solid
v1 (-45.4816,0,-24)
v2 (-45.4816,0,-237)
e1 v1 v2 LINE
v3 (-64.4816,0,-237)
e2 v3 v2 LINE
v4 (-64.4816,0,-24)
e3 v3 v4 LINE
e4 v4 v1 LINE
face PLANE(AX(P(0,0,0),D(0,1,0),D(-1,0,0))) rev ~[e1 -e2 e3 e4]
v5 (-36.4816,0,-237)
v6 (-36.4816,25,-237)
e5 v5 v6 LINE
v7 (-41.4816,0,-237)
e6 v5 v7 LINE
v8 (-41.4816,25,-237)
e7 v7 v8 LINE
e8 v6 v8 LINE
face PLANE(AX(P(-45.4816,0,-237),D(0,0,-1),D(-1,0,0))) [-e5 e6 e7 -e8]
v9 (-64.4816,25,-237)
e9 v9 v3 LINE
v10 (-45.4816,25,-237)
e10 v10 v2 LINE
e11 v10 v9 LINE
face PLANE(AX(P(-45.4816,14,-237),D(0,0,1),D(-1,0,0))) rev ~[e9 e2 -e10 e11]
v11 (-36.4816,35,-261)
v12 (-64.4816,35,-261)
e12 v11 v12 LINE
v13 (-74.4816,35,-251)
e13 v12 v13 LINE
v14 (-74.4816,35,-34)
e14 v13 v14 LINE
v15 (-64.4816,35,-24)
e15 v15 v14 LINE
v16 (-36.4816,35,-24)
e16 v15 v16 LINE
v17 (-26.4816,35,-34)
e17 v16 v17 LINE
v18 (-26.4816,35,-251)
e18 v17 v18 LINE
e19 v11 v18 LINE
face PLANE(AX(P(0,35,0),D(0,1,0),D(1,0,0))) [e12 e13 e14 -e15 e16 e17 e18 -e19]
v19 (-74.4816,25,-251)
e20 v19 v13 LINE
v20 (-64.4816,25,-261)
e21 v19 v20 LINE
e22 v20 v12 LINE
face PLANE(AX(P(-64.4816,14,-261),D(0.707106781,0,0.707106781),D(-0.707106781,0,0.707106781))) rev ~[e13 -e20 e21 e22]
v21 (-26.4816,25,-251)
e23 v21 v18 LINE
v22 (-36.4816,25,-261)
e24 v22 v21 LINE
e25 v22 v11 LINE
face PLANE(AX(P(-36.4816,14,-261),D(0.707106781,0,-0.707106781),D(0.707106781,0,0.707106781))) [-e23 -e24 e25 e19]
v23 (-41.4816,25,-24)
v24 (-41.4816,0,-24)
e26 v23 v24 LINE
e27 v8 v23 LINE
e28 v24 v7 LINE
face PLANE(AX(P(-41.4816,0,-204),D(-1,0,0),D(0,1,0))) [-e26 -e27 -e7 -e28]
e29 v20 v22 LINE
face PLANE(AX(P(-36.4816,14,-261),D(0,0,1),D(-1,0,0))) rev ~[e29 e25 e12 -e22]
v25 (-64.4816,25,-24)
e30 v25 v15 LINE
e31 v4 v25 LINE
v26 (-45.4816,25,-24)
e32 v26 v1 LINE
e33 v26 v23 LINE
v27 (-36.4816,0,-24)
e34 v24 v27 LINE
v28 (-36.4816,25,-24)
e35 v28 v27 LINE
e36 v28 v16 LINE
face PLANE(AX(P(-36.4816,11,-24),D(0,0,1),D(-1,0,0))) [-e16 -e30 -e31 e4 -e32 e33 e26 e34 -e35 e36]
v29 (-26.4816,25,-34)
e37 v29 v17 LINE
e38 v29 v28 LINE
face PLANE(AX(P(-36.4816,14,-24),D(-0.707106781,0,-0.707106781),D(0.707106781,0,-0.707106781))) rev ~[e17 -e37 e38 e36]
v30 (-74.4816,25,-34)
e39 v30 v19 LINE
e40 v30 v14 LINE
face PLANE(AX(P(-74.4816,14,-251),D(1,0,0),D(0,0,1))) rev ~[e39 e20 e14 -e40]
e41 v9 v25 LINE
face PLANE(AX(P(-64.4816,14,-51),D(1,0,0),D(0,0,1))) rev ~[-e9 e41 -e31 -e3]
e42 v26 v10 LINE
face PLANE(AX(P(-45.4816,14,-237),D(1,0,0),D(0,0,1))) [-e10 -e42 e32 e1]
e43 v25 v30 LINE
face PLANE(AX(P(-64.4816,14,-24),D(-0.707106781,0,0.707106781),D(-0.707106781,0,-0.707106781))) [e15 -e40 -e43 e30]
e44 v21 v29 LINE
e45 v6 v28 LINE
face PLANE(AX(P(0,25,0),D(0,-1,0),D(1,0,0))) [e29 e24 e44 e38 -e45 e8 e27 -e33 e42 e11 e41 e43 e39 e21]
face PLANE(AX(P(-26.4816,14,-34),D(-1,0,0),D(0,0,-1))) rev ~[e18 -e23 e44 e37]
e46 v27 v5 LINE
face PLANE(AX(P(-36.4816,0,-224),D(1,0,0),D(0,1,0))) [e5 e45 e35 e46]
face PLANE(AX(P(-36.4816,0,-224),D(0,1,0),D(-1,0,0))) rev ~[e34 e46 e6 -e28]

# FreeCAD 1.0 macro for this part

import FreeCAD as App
import Part
import Sketcher
from FreeCAD import Vector
Q = App.Units.Quantity


def add_polygon(sketch, points):
    """Adds a closed chain of lines whose ends are joined by coincident constraints."""
    first, n = sketch.GeometryCount, len(points)
    for a, b in zip(points, points[1:] + points[:1]):
        sketch.addGeometry(Part.LineSegment(App.Vector(*a, 0), App.Vector(*b, 0)), False)
    for i in range(n):
        sketch.addConstraint(Sketcher.Constraint("Coincident", first + i, 2, first + (i + 1) % n, 1))

doc = App.newDocument("Part")
params = doc.addObject("Spreadsheet::Sheet", "Params")
for row, (alias, value) in enumerate([
    ("sketch1_width", "19 mm"),
    ("sketch1_width2", "5 mm"),
    ("sketch1_height", "27 mm"),
    ("sketch1_height2", "20 mm"),
    ("sketch1_height3", "85 mm"),
    ("pad1_length", "11 mm"),
    ("sketch2_width", "28 mm"),
    ("sketch2_height", "200 mm"),
    ("pad2_length", "3 mm"),
    ("pocket1_length", "11 mm"),
    ("sketch4_width", "28 mm"),
    ("sketch4_height", "217 mm"),
    ("pad3_length", "21 mm"),
    ("sketch5_width", "5 mm"),
    ("sketch5_width2", "4 mm"),
    ("sketch5_width3", "19 mm"),
    ("sketch5_height", "14 mm"),
    ("sketch5_height2", "11 mm"),
    ("pad4_length", "13 mm"),
    ("sketch6_width", "5 mm"),
    ("sketch6_width2", "4 mm"),
    ("sketch6_width3", "19 mm"),
    ("sketch6_height", "27 mm"),
    ("sketch6_height2", "33 mm"),
    ("pocket2_length", "3 mm"),
    ("sketch7_width", "5 mm"),
    ("sketch7_width2", "4 mm"),
    ("sketch7_width3", "19 mm"),
    ("sketch7_height", "27 mm"),
    ("sketch7_height2", "217 mm"),
    ("pocket3_length", "11 mm"),
    ("sketch8_width", "19 mm"),
    ("sketch8_width2", "5 mm"),
    ("sketch8_height", "25 mm"),
    ("pad5_length", "180 mm"),
], start=1):
    params.set(f"A{row}", alias)
    params.set(f"B{row}", "=" + value)
    params.setAlias(f"B{row}", alias)

body = doc.addObject("PartDesign::Body", "Body")
body.AllowCompound = True

# Sketch on XZ plane
sketch1 = body.newObject("Sketcher::SketchObject", "Sketch")
sketch1.AttachmentSupport = (doc.getObject("XZ_Plane"), [""])
sketch1.MapMode = "FlatFace"
add_polygon(sketch1, [(-64, -24), (-45, -24), (-45, -51), (-64, -51)])  # lines 0-3
add_polygon(sketch1, [(-45, -224), (-64, -224), (-64, -204), (-45, -204)])  # lines 4-7
add_polygon(sketch1, [(-64, -154), (-64, -69), (-45, -69), (-45, -154)])  # lines 8-11
add_polygon(sketch1, [(-41, -224), (-41, -24), (-36, -24), (-36, -224)])  # lines 12-15
sketch1.addConstraint([
    Sketcher.Constraint("Horizontal", 0),
    Sketcher.Constraint("Vertical", 1),
    Sketcher.Constraint("Horizontal", 2),
    Sketcher.Constraint("Vertical", 3),
    Sketcher.Constraint("Horizontal", 4),
    Sketcher.Constraint("Vertical", 5),
    Sketcher.Constraint("Horizontal", 6),
    Sketcher.Constraint("Vertical", 7),
    Sketcher.Constraint("Vertical", 8),
    Sketcher.Constraint("Horizontal", 9),
    Sketcher.Constraint("Vertical", 10),
    Sketcher.Constraint("Horizontal", 11),
    Sketcher.Constraint("Vertical", 12),
    Sketcher.Constraint("Horizontal", 13),
    Sketcher.Constraint("Vertical", 14),
    Sketcher.Constraint("Horizontal", 15),
    Sketcher.Constraint("Horizontal", 3, 2, 12, 2),
    Sketcher.Constraint("Horizontal", 7, 2, 14, 2),
    Sketcher.Constraint("Vertical", 3, 2, 4, 2),
    Sketcher.Constraint("Vertical", 1, 2, 6, 2),
    Sketcher.Constraint("Vertical", 5, 2, 8, 2),
    Sketcher.Constraint("Vertical", 7, 2, 9, 2),
    Sketcher.Constraint("DistanceX", 0, 1, 0, 2, Q("19 mm")),
    Sketcher.Constraint("DistanceX", 13, 1, 13, 2, Q("5 mm")),
    Sketcher.Constraint("DistanceY", 1, 2, 1, 1, Q("27 mm")),
    Sketcher.Constraint("DistanceY", 5, 1, 5, 2, Q("20 mm")),
    Sketcher.Constraint("DistanceY", 8, 1, 8, 2, Q("85 mm")),
    Sketcher.Constraint("DistanceY", 12, 1, 12, 2, Q("200 mm")),
    Sketcher.Constraint("DistanceY", 8, 2, 3, 2, Q("45 mm")),
    Sketcher.Constraint("DistanceX", 0, 2, 12, 2, Q("4 mm")),
    Sketcher.Constraint("DistanceY", 0, 2, -1, 1, Q("24 mm")),
    Sketcher.Constraint("DistanceX", 0, 2, -1, 1, Q("45.4816 mm")),
])
sketch1.setExpression("Constraints[38]", "Params.sketch1_width")
sketch1.setExpression("Constraints[39]", "Params.sketch1_width2")
sketch1.setExpression("Constraints[40]", "Params.sketch1_height")
sketch1.setExpression("Constraints[41]", "Params.sketch1_height2")
sketch1.setExpression("Constraints[42]", "Params.sketch1_height3")
pad1 = body.newObject("PartDesign::Pad", "Pad")
pad1.Profile = sketch1
pad1.setExpression("Length", "Params.pad1_length")
pad1.Reversed = True

# Sketch on XZ plane
sketch2 = body.newObject("Sketcher::SketchObject", "Sketch001")
sketch2.AttachmentSupport = (doc.getObject("XZ_Plane"), [""])
sketch2.MapMode = "FlatFace"
sketch2.AttachmentOffset = App.Placement(Vector(0, 0, -11), App.Rotation())
add_polygon(sketch2, [(-36, -224), (-64, -224), (-64, -24), (-36, -24)])  # lines 0-3
sketch2.addConstraint([
    Sketcher.Constraint("Horizontal", 0),
    Sketcher.Constraint("Vertical", 1),
    Sketcher.Constraint("Horizontal", 2),
    Sketcher.Constraint("Vertical", 3),
    Sketcher.Constraint("DistanceX", 0, 2, 0, 1, Q("28 mm")),
    Sketcher.Constraint("DistanceY", 1, 1, 1, 2, Q("200 mm")),
    Sketcher.Constraint("DistanceY", 0, 2, -1, 1, Q("224 mm")),
    Sketcher.Constraint("DistanceX", 0, 2, -1, 1, Q("64.4816 mm")),
])
sketch2.setExpression("Constraints[8]", "Params.sketch2_width")
sketch2.setExpression("Constraints[9]", "Params.sketch2_height")
pad2 = body.newObject("PartDesign::Pad", "Pad001")
pad2.Profile = sketch2
pad2.setExpression("Length", "Params.pad2_length")
pad2.Reversed = True

# Sketch on XZ plane
sketch3 = body.newObject("Sketcher::SketchObject", "Sketch002")
sketch3.AttachmentSupport = (doc.getObject("XZ_Plane"), [""])
sketch3.MapMode = "FlatFace"
add_polygon(sketch3, [(-19, -111), (-19, -51), (-77, -51), (-77, -111)])  # lines 0-3
add_polygon(sketch3, [(-25, -204), (-25, -135), (-87, -135), (-87, -204)])  # lines 4-7
sketch3.addConstraint([
    Sketcher.Constraint("Vertical", 0),
    Sketcher.Constraint("Horizontal", 1),
    Sketcher.Constraint("Vertical", 2),
    Sketcher.Constraint("Horizontal", 3),
    Sketcher.Constraint("Vertical", 4),
    Sketcher.Constraint("Horizontal", 5),
    Sketcher.Constraint("Vertical", 6),
    Sketcher.Constraint("Horizontal", 7),
    Sketcher.Constraint("DistanceX", 5, 2, 5, 1, Q("61.776 mm")),
    Sketcher.Constraint("DistanceY", 4, 1, 4, 2, Q("68.423 mm")),
    Sketcher.Constraint("DistanceX", 1, 2, 1, 1, Q("57.4752 mm")),
    Sketcher.Constraint("DistanceY", 0, 1, 0, 2, Q("59.8212 mm")),
    Sketcher.Constraint("DistanceX", 0, 2, -1, 1, Q("19.354 mm")),
    Sketcher.Constraint("DistanceY", 0, 2, -1, 1, Q("51.024 mm")),
    Sketcher.Constraint("DistanceX", 5, 2, 3, 2, Q("67.641 mm")),
    Sketcher.Constraint("DistanceY", 6, 2, 2, 2, Q("93.055 mm")),
])
pocket1 = body.newObject("PartDesign::Pocket", "Pocket")
pocket1.Profile = sketch3
pocket1.setExpression("Length", "Params.pocket1_length")

# Sketch on XZ plane
sketch4 = body.newObject("Sketcher::SketchObject", "Sketch003")
sketch4.AttachmentSupport = (doc.getObject("XZ_Plane"), [""])
sketch4.MapMode = "FlatFace"
sketch4.AttachmentOffset = App.Placement(Vector(0, 0, -14), App.Rotation())
add_polygon(sketch4, [(-64, -24), (-36, -24), (-26, -34), (-26, -251), (-36, -261), (-64, -261), (-74, -251), (-74, -34)])  # lines 0-7
sketch4.addConstraint([
    Sketcher.Constraint("Horizontal", 0),
    Sketcher.Constraint("Vertical", 2),
    Sketcher.Constraint("Horizontal", 4),
    Sketcher.Constraint("Vertical", 6),
    Sketcher.Constraint("Perpendicular", 1, 3),
    Sketcher.Constraint("Perpendicular", 3, 5),
    Sketcher.Constraint("Perpendicular", 5, 7),
    Sketcher.Constraint("Horizontal", 2, 2, 5, 2),
    Sketcher.Constraint("Horizontal", 1, 2, 6, 2),
    Sketcher.Constraint("Vertical", 0, 2, 3, 2),
    Sketcher.Constraint("Vertical", 4, 2, 7, 2),
    Sketcher.Constraint("DistanceX", 0, 2, 1, 2, Q("10 mm")),
    Sketcher.Constraint("DistanceX", 0, 1, 0, 2, Q("28 mm")),
    Sketcher.Constraint("DistanceY", 2, 2, 2, 1, Q("217 mm")),
    Sketcher.Constraint("DistanceY", 0, 2, -1, 1, Q("24 mm")),
    Sketcher.Constraint("DistanceX", 0, 2, -1, 1, Q("36.4816 mm")),
])
sketch4.setExpression("Constraints[20]", "Params.sketch4_width")
sketch4.setExpression("Constraints[21]", "Params.sketch4_height")
pad3 = body.newObject("PartDesign::Pad", "Pad002")
pad3.Profile = sketch4
pad3.setExpression("Length", "Params.pad3_length")
pad3.Reversed = True

# Sketch on XY plane
sketch5 = body.newObject("Sketcher::SketchObject", "Sketch004")
sketch5.AttachmentSupport = (doc.getObject("XY_Plane"), [""])
sketch5.MapMode = "FlatFace"
sketch5.AttachmentOffset = App.Placement(Vector(0, 0, -224), App.Rotation())
add_polygon(sketch5, [(-36.5, 14), (-36.5, 0), (-41.5, 0), (-41.5, 11), (-45.5, 11), (-45.5, 0), (-64.5, 0), (-64.5, 14)])  # lines 0-7
sketch5.addConstraint([
    Sketcher.Constraint("Vertical", 0),
    Sketcher.Constraint("Horizontal", 1),
    Sketcher.Constraint("Vertical", 2),
    Sketcher.Constraint("Horizontal", 3),
    Sketcher.Constraint("Vertical", 4),
    Sketcher.Constraint("Horizontal", 5),
    Sketcher.Constraint("Vertical", 6),
    Sketcher.Constraint("Horizontal", 7),
    Sketcher.Constraint("PointOnObject", 0, 2, -1),
    Sketcher.Constraint("PointOnObject", 4, 2, -1),
    Sketcher.Constraint("DistanceX", 1, 2, 1, 1, Q("5 mm")),
    Sketcher.Constraint("DistanceX", 3, 2, 3, 1, Q("4 mm")),
    Sketcher.Constraint("DistanceX", 5, 2, 5, 1, Q("19 mm")),
    Sketcher.Constraint("DistanceY", 0, 2, 0, 1, Q("14 mm")),
    Sketcher.Constraint("DistanceY", 2, 1, 2, 2, Q("11 mm")),
    Sketcher.Constraint("DistanceX", 0, 2, -1, 1, Q("36.4816 mm")),
])
sketch5.setExpression("Constraints[18]", "Params.sketch5_width")
sketch5.setExpression("Constraints[19]", "Params.sketch5_width2")
sketch5.setExpression("Constraints[20]", "Params.sketch5_width3")
sketch5.setExpression("Constraints[21]", "Params.sketch5_height")
sketch5.setExpression("Constraints[22]", "Params.sketch5_height2")
pad4 = body.newObject("PartDesign::Pad", "Pad003")
pad4.Profile = sketch5
pad4.setExpression("Length", "Params.pad4_length")
pad4.Reversed = True

# Sketch on XZ plane
sketch6 = body.newObject("Sketcher::SketchObject", "Sketch005")
sketch6.AttachmentSupport = (doc.getObject("XZ_Plane"), [""])
sketch6.MapMode = "FlatFace"
sketch6.AttachmentOffset = App.Placement(Vector(0, 0, -11), App.Rotation())
add_polygon(sketch6, [(-36.5, -51), (-41.5, -51), (-41.5, -24), (-45.5, -24), (-45.5, -51), (-64.5, -51), (-64.5, -110.8), (-45.5, -110.8), (-45.5, -135.5), (-64.5, -135.5), (-64.5, -204), (-45.5, -204), (-45.5, -237), (-41.5, -237), (-41.5, -203.9), (-36.5, -203.9), (-36.5, -135.5), (-41.5, -135.5), (-41.5, -110.8), (-36.5, -110.8)])  # lines 0-19
sketch6.addConstraint([
    Sketcher.Constraint("Horizontal", 0),
    Sketcher.Constraint("Vertical", 1),
    Sketcher.Constraint("Horizontal", 2),
    Sketcher.Constraint("Vertical", 3),
    Sketcher.Constraint("Horizontal", 4),
    Sketcher.Constraint("Vertical", 5),
    Sketcher.Constraint("Horizontal", 6),
    Sketcher.Constraint("Vertical", 7),
    Sketcher.Constraint("Horizontal", 8),
    Sketcher.Constraint("Vertical", 9),
    Sketcher.Constraint("Horizontal", 10),
    Sketcher.Constraint("Vertical", 11),
    Sketcher.Constraint("Horizontal", 12),
    Sketcher.Constraint("Vertical", 13),
    Sketcher.Constraint("Horizontal", 14),
    Sketcher.Constraint("Vertical", 15),
    Sketcher.Constraint("Horizontal", 16),
    Sketcher.Constraint("Vertical", 17),
    Sketcher.Constraint("Horizontal", 18),
    Sketcher.Constraint("Vertical", 19),
    Sketcher.Constraint("Horizontal", 8, 2, 15, 2),
    Sketcher.Constraint("Horizontal", 6, 2, 17, 2),
    Sketcher.Constraint("Vertical", 3, 2, 6, 2),
    Sketcher.Constraint("Vertical", 5, 2, 8, 2),
    Sketcher.Constraint("Vertical", 7, 2, 10, 2),
    Sketcher.Constraint("Vertical", 1, 2, 12, 2),
    Sketcher.Constraint("Vertical", 13, 2, 16, 2),
    Sketcher.Constraint("Vertical", 15, 2, 18, 2),
    Sketcher.Constraint("DistanceX", 0, 2, 0, 1, Q("5 mm")),
    Sketcher.Constraint("DistanceX", 2, 2, 2, 1, Q("4 mm")),
    Sketcher.Constraint("DistanceX", 4, 2, 4, 1, Q("19 mm")),
    Sketcher.Constraint("DistanceY", 3, 2, 3, 1, Q("27 mm")),
    Sketcher.Constraint("DistanceY", 11, 2, 11, 1, Q("33 mm")),
    Sketcher.Constraint("DistanceY", 1, 2, -1, 1, Q("24 mm")),
    Sketcher.Constraint("DistanceY", 9, 2, -1, 1, Q("204 mm")),
    Sketcher.Constraint("DistanceY", 1, 1, 1, 2, Q("27.024 mm")),
    Sketcher.Constraint("DistanceY", 5, 2, 5, 1, Q("59.845 mm")),
    Sketcher.Constraint("DistanceY", 15, 1, 15, 2, Q("68.423 mm")),
    Sketcher.Constraint("DistanceY", 7, 2, 7, 1, Q("24.6322 mm")),
    Sketcher.Constraint("DistanceX", 0, 2, -1, 1, Q("41.4816 mm")),
])
sketch6.setExpression("Constraints[48]", "Params.sketch6_width")
sketch6.setExpression("Constraints[49]", "Params.sketch6_width2")
sketch6.setExpression("Constraints[50]", "Params.sketch6_width3")
sketch6.setExpression("Constraints[51]", "Params.sketch6_height")
sketch6.setExpression("Constraints[52]", "Params.sketch6_height2")
pocket2 = body.newObject("PartDesign::Pocket", "Pocket001")
pocket2.Profile = sketch6
pocket2.setExpression("Length", "Params.pocket2_length")

# Sketch on XZ plane
sketch7 = body.newObject("Sketcher::SketchObject", "Sketch006")
sketch7.AttachmentSupport = (doc.getObject("XZ_Plane"), [""])
sketch7.MapMode = "FlatFace"
sketch7.AttachmentOffset = App.Placement(Vector(0, 0, -14), App.Rotation())
add_polygon(sketch7, [(-36.5, -51), (-41.5, -51), (-41.5, -24), (-45.5, -24), (-45.5, -51), (-64.5, -51), (-64.5, -24), (-74.5, -34), (-74.5, -251), (-64.5, -261), (-36.5, -261), (-26.5, -251), (-26.5, -34), (-36.5, -24)])  # lines 0-13
add_polygon(sketch7, [(-64.5, -204), (-45.5, -204), (-45.5, -237), (-64.5, -237)])  # lines 14-17
add_polygon(sketch7, [(-41.5, -203.9), (-36.5, -203.9), (-36.5, -237), (-41.5, -237)])  # lines 18-21
add_polygon(sketch7, [(-64.5, -110.8), (-45.5, -110.8), (-45.5, -135.5), (-64.5, -135.5)])  # lines 22-25
add_polygon(sketch7, [(-41.5, -110.8), (-36.5, -110.8), (-36.5, -135.5), (-41.5, -135.5)])  # lines 26-29
sketch7.addConstraint([
    Sketcher.Constraint("Horizontal", 0),
    Sketcher.Constraint("Vertical", 1),
    Sketcher.Constraint("Horizontal", 2),
    Sketcher.Constraint("Vertical", 3),
    Sketcher.Constraint("Horizontal", 4),
    Sketcher.Constraint("Vertical", 5),
    Sketcher.Constraint("Vertical", 7),
    Sketcher.Constraint("Horizontal", 9),
    Sketcher.Constraint("Vertical", 11),
    Sketcher.Constraint("Vertical", 13),
    Sketcher.Constraint("Horizontal", 14),
    Sketcher.Constraint("Vertical", 15),
    Sketcher.Constraint("Horizontal", 16),
    Sketcher.Constraint("Vertical", 17),
    Sketcher.Constraint("Horizontal", 18),
    Sketcher.Constraint("Vertical", 19),
    Sketcher.Constraint("Horizontal", 20),
    Sketcher.Constraint("Vertical", 21),
    Sketcher.Constraint("Horizontal", 22),
    Sketcher.Constraint("Vertical", 23),
    Sketcher.Constraint("Horizontal", 24),
    Sketcher.Constraint("Vertical", 25),
    Sketcher.Constraint("Horizontal", 26),
    Sketcher.Constraint("Vertical", 27),
    Sketcher.Constraint("Horizontal", 28),
    Sketcher.Constraint("Vertical", 29),
    Sketcher.Constraint("Perpendicular", 6, 8),
    Sketcher.Constraint("Perpendicular", 8, 10),
    Sketcher.Constraint("Perpendicular", 10, 12),
    Sketcher.Constraint("Horizontal", 2, 2, 5, 2),
    Sketcher.Constraint("Horizontal", 7, 2, 10, 2),
    Sketcher.Constraint("Horizontal", 6, 2, 11, 2),
    Sketcher.Constraint("Horizontal", 5, 2, 12, 2),
    Sketcher.Constraint("Horizontal", 16, 2, 19, 2),
    Sketcher.Constraint("Horizontal", 25, 2, 26, 2),
    Sketcher.Constraint("Horizontal", 24, 2, 27, 2),
    Sketcher.Constraint("Vertical", 5, 2, 8, 2),
    Sketcher.Constraint("Vertical", 9, 2, 12, 2),
    Sketcher.Constraint("Vertical", 3, 2, 14, 2),
    Sketcher.Constraint("Vertical", 8, 2, 16, 2),
    Sketcher.Constraint("Vertical", 13, 2, 18, 2),
    Sketcher.Constraint("Vertical", 1, 2, 20, 2),
    Sketcher.Constraint("Vertical", 15, 2, 22, 2),
    Sketcher.Constraint("Vertical", 17, 2, 24, 2),
    Sketcher.Constraint("Vertical", 19, 2, 26, 2),
    Sketcher.Constraint("Vertical", 21, 2, 28, 2),
    Sketcher.Constraint("DistanceX", 0, 2, 0, 1, Q("5 mm")),
    Sketcher.Constraint("DistanceX", 2, 2, 2, 1, Q("4 mm")),
    Sketcher.Constraint("DistanceX", 4, 2, 4, 1, Q("19 mm")),
    Sketcher.Constraint("DistanceY", 3, 2, 3, 1, Q("27 mm")),
    Sketcher.Constraint("DistanceY", 7, 2, 7, 1, Q("217 mm")),
    Sketcher.Constraint("DistanceY", 15, 2, 15, 1, Q("33 mm")),
    Sketcher.Constraint("DistanceY", 1, 2, -1, 1, Q("24 mm")),
    Sketcher.Constraint("DistanceY", 6, 2, -1, 1, Q("34 mm")),
    Sketcher.Constraint("DistanceY", 14, 2, -1, 1, Q("204 mm")),
    Sketcher.Constraint("DistanceY", 1, 1, 1, 2, Q("27.024 mm")),
    Sketcher.Constraint("DistanceY", 19, 2, 19, 1, Q("33.0998 mm")),
    Sketcher.Constraint("DistanceY", 23, 2, 23, 1, Q("24.6322 mm")),
    Sketcher.Constraint("DistanceY", 22, 2, -1, 1, Q("110.845 mm")),
    Sketcher.Constraint("DistanceX", 0, 2, -1, 1, Q("41.4816 mm")),
])
sketch7.setExpression("Constraints[76]", "Params.sketch7_width")
sketch7.setExpression("Constraints[77]", "Params.sketch7_width2")
sketch7.setExpression("Constraints[78]", "Params.sketch7_width3")
sketch7.setExpression("Constraints[79]", "Params.sketch7_height")
sketch7.setExpression("Constraints[80]", "Params.sketch7_height2")
pocket3 = body.newObject("PartDesign::Pocket", "Pocket002")
pocket3.Profile = sketch7
pocket3.setExpression("Length", "Params.pocket3_length")

# Sketch on XY plane
sketch8 = body.newObject("Sketcher::SketchObject", "Sketch007")
sketch8.AttachmentSupport = (doc.getObject("XY_Plane"), [""])
sketch8.MapMode = "FlatFace"
sketch8.AttachmentOffset = App.Placement(Vector(0, 0, -204), App.Rotation())
add_polygon(sketch8, [(-64, 25), (-64, 0), (-45, 0), (-45, 25)])  # lines 0-3
add_polygon(sketch8, [(-41, 25), (-41, 0), (-36, 0), (-36, 25)])  # lines 4-7
sketch8.addConstraint([
    Sketcher.Constraint("Vertical", 0),
    Sketcher.Constraint("Horizontal", 1),
    Sketcher.Constraint("Vertical", 2),
    Sketcher.Constraint("Horizontal", 3),
    Sketcher.Constraint("Vertical", 4),
    Sketcher.Constraint("Horizontal", 5),
    Sketcher.Constraint("Vertical", 6),
    Sketcher.Constraint("Horizontal", 7),
    Sketcher.Constraint("PointOnObject", 0, 2, -1),
    Sketcher.Constraint("PointOnObject", 4, 2, -1),
    Sketcher.Constraint("Horizontal", 3, 2, 6, 2),
    Sketcher.Constraint("DistanceX", 1, 1, 1, 2, Q("19 mm")),
    Sketcher.Constraint("DistanceX", 5, 1, 5, 2, Q("5 mm")),
    Sketcher.Constraint("DistanceY", 0, 2, 0, 1, Q("25 mm")),
    Sketcher.Constraint("DistanceX", 1, 2, 4, 2, Q("4 mm")),
    Sketcher.Constraint("DistanceX", 0, 2, -1, 1, Q("64.4816 mm")),
])
sketch8.setExpression("Constraints[19]", "Params.sketch8_width")
sketch8.setExpression("Constraints[20]", "Params.sketch8_width2")
sketch8.setExpression("Constraints[21]", "Params.sketch8_height")
pad5 = body.newObject("PartDesign::Pad", "Pad004")
pad5.Profile = sketch8
pad5.setExpression("Length", "Params.pad5_length")

doc.recompute()
